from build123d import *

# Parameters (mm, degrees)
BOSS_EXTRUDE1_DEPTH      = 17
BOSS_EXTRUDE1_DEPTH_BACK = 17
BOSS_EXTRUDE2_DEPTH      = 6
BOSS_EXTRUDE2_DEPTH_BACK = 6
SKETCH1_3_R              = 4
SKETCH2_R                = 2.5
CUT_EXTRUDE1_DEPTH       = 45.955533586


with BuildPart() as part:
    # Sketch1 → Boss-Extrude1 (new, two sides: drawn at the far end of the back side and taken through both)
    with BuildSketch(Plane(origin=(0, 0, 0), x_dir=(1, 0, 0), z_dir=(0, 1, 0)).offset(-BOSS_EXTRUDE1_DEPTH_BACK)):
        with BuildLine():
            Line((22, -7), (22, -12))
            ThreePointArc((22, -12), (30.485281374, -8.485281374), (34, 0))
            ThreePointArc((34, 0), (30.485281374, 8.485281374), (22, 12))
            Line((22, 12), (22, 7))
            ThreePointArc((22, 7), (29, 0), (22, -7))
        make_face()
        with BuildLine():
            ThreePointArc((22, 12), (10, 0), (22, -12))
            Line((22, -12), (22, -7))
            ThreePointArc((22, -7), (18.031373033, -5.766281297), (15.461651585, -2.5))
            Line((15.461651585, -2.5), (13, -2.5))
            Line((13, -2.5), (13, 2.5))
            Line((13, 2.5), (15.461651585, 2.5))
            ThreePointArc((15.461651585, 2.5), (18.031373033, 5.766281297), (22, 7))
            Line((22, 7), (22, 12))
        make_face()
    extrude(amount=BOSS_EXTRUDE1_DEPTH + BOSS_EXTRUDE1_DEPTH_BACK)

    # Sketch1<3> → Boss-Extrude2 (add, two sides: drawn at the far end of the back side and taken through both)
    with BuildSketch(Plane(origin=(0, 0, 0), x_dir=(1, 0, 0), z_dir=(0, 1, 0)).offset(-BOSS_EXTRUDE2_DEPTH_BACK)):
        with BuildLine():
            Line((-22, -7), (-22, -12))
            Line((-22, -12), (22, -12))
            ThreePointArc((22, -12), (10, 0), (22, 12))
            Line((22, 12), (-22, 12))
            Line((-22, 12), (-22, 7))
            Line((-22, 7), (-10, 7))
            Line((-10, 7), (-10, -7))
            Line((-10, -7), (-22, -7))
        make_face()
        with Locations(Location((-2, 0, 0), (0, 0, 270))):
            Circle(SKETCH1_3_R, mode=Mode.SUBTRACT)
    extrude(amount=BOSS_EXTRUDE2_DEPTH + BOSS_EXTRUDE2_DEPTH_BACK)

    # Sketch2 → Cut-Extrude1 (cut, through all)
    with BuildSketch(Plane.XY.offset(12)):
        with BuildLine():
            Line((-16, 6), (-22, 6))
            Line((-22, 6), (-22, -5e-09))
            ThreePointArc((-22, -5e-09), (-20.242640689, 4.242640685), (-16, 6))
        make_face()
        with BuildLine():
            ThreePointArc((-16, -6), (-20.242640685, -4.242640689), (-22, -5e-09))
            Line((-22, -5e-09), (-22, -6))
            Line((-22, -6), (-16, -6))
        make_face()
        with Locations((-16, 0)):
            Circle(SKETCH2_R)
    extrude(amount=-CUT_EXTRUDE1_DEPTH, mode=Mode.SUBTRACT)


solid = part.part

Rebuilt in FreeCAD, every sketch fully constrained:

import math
import FreeCAD as App
import Part
import Sketcher
Q = App.Units.Quantity

doc = App.newDocument("Part")
params = doc.addObject("Spreadsheet::Sheet", "Params")
for row, (alias, value) in enumerate([
    ("sketch1_radius", "12 mm"),
    ("sketch1_radius2", "7 mm"),
    ("sketch1_height", "5 mm"),
    ("pad1_length", "17 mm"),
    ("pad1_length2", "17 mm"),
    ("sketch2_diameter", "8 mm"),
    ("sketch2_radius", "12 mm"),
    ("sketch2_width", "44 mm"),
    ("sketch2_width2", "12 mm"),
    ("sketch2_height", "5 mm"),
    ("pad2_length", "6 mm"),
    ("pad2_length2", "6 mm"),
    ("sketch3_diameter", "5 mm"),
    ("sketch3_radius", "6 mm"),
], start=1):
    params.set(f"A{row}", alias)
    params.set(f"B{row}", "=" + value)
    params.setAlias(f"B{row}", alias)

body = doc.addObject("PartDesign::Body", "Body")

# Sketch on XZ plane
sketch1 = body.newObject("Sketcher::SketchObject", "Sketch")
sketch1.AttachmentSupport = (doc.getObject("XZ_Plane"), [""])
sketch1.MapMode = "FlatFace"
sketch1.addGeometry([
    Part.ArcOfCircle(Part.Circle(App.Vector(22, 0, 0), App.Vector(0, 0, 1), 12), math.radians(0), math.radians(90)),  # 0
    Part.ArcOfCircle(Part.Circle(App.Vector(22, 0, 0), App.Vector(0, 0, 1), 12), math.radians(-90), math.radians(0)),  # 1
    Part.ArcOfCircle(Part.Circle(App.Vector(22, 0, 0), App.Vector(0, 0, 1), 12), math.radians(90), math.radians(270)),  # 2
    Part.ArcOfCircle(Part.Circle(App.Vector(22, 0, 0), App.Vector(0, 0, 1), 7), math.radians(-90), math.radians(90)),  # 3
    Part.ArcOfCircle(Part.Circle(App.Vector(22, 0, 0), App.Vector(0, 0, 1), 7), math.radians(90), math.radians(159.075168)),  # 4
    Part.LineSegment(App.Vector(15.461652, 2.5, 0), App.Vector(13, 2.5, 0)),  # 5
    Part.LineSegment(App.Vector(13, 2.5, 0), App.Vector(13, -2.5, 0)),  # 6
    Part.LineSegment(App.Vector(13, -2.5, 0), App.Vector(15.461652, -2.5, 0)),  # 7
    Part.ArcOfCircle(Part.Circle(App.Vector(22, 0, 0), App.Vector(0, 0, 1), 7), math.radians(-159.075168), math.radians(-90)),  # 8
], False)
sketch1.addConstraint([
    Sketcher.Constraint("Tangent", 0, 1, 1, 2),
    Sketcher.Constraint("Tangent", 1, 1, 2, 2),
    Sketcher.Constraint("Tangent", 2, 1, 0, 2),
    Sketcher.Constraint("Tangent", 3, 2, 4, 1),
    Sketcher.Constraint("Coincident", 4, 2, 5, 1),
    Sketcher.Constraint("Coincident", 5, 2, 6, 1),
    Sketcher.Constraint("Coincident", 6, 2, 7, 1),
    Sketcher.Constraint("Coincident", 7, 2, 8, 1),
    Sketcher.Constraint("Tangent", 8, 2, 3, 1),
    Sketcher.Constraint("Horizontal", 5),
    Sketcher.Constraint("Vertical", 6),
    Sketcher.Constraint("Horizontal", 7),
    Sketcher.Constraint("Coincident", 3, 3, 0, 3),
    Sketcher.Constraint("Equal", 3, 4),
    Sketcher.Constraint("Equal", 4, 8),
    Sketcher.Constraint("Symmetric", 1, 1, 2, 1, -1),
    Sketcher.Constraint("PointOnObject", 0, 1, -1),
    Sketcher.Constraint("Vertical", 8, 3, 1, 1),
    Sketcher.Constraint("Vertical", 2, 1, 3, 2),
    Sketcher.Constraint("Vertical", 4, 2, 7, 2),
    Sketcher.Constraint("Vertical", 3, 2, 8, 2),
    Sketcher.Constraint("Radius", 0, Q("12 mm")),
    Sketcher.Constraint("Radius", 3, Q("7 mm")),
    Sketcher.Constraint("DistanceY", 6, 2, 6, 1, Q("5 mm")),
    Sketcher.Constraint("DistanceX", -1, 1, 0, 3, Q("22 mm")),
    Sketcher.Constraint("DistanceX", -1, 1, 5, 2, Q("13 mm")),
])
sketch1.setExpression("Constraints[21]", "Params.sketch1_radius")
sketch1.setExpression("Constraints[22]", "Params.sketch1_radius2")
sketch1.setExpression("Constraints[23]", "Params.sketch1_height")
pad1 = body.newObject("PartDesign::Pad", "Pad")
pad1.Profile = sketch1
pad1.Type = "TwoLengths"
pad1.setExpression("Length", "Params.pad1_length")
pad1.setExpression("Length2", "Params.pad1_length2")
pad1.Reversed = True

# Sketch on XZ plane
sketch2 = body.newObject("Sketcher::SketchObject", "Sketch001")
sketch2.AttachmentSupport = (doc.getObject("XZ_Plane"), [""])
sketch2.MapMode = "FlatFace"
sketch2.addGeometry([
    Part.LineSegment(App.Vector(-22, 7, 0), App.Vector(-22, 12, 0)),  # 0
    Part.LineSegment(App.Vector(-22, 12, 0), App.Vector(22, 12, 0)),  # 1
    Part.ArcOfCircle(Part.Circle(App.Vector(22, 0, 0), App.Vector(0, 0, 1), 12), math.radians(90), math.radians(270)),  # 2
    Part.LineSegment(App.Vector(22, -12, 0), App.Vector(-22, -12, 0)),  # 3
    Part.LineSegment(App.Vector(-22, -12, 0), App.Vector(-22, -7, 0)),  # 4
    Part.LineSegment(App.Vector(-22, -7, 0), App.Vector(-10, -7, 0)),  # 5
    Part.LineSegment(App.Vector(-10, -7, 0), App.Vector(-10, 7, 0)),  # 6
    Part.LineSegment(App.Vector(-10, 7, 0), App.Vector(-22, 7, 0)),  # 7
    Part.Circle(App.Vector(-2, 0, 0), App.Vector(0, 0, 1), 4),  # 8
], False)
sketch2.addConstraint([
    Sketcher.Constraint("Coincident", 0, 2, 1, 1),
    Sketcher.Constraint("Tangent", 1, 2, 2, 1),
    Sketcher.Constraint("Tangent", 2, 2, 3, 1),
    Sketcher.Constraint("Coincident", 3, 2, 4, 1),
    Sketcher.Constraint("Coincident", 4, 2, 5, 1),
    Sketcher.Constraint("Coincident", 5, 2, 6, 1),
    Sketcher.Constraint("Coincident", 6, 2, 7, 1),
    Sketcher.Constraint("Coincident", 7, 2, 0, 1),
    Sketcher.Constraint("Vertical", 0),
    Sketcher.Constraint("Horizontal", 1),
    Sketcher.Constraint("Horizontal", 3),
    Sketcher.Constraint("Vertical", 4),
    Sketcher.Constraint("Horizontal", 5),
    Sketcher.Constraint("Vertical", 6),
    Sketcher.Constraint("Horizontal", 7),
    Sketcher.Constraint("Symmetric", 0, 2, 2, 2, -1, 1),
    Sketcher.Constraint("Symmetric", 4, 2, 7, 2, -1),
    Sketcher.Constraint("PointOnObject", 8, 3, -1),
    Sketcher.Constraint("Diameter", 8, Q("8 mm")),
    Sketcher.Constraint("Radius", 2, Q("12 mm")),
    Sketcher.Constraint("DistanceX", 1, 1, 1, 2, Q("44 mm")),
    Sketcher.Constraint("DistanceX", 5, 1, 5, 2, Q("12 mm")),
    Sketcher.Constraint("DistanceY", 0, 1, 0, 2, Q("5 mm")),
    Sketcher.Constraint("DistanceX", 8, 3, -1, 1, Q("2 mm")),
])
sketch2.setExpression("Constraints[18]", "Params.sketch2_diameter")
sketch2.setExpression("Constraints[19]", "Params.sketch2_radius")
sketch2.setExpression("Constraints[20]", "Params.sketch2_width")
sketch2.setExpression("Constraints[21]", "Params.sketch2_width2")
sketch2.setExpression("Constraints[22]", "Params.sketch2_height")
pad2 = body.newObject("PartDesign::Pad", "Pad001")
pad2.Profile = sketch2
pad2.Type = "TwoLengths"
pad2.setExpression("Length", "Params.pad2_length")
pad2.setExpression("Length2", "Params.pad2_length2")
pad2.Reversed = True

# Sketch on XY plane
sketch3 = body.newObject("Sketcher::SketchObject", "Sketch002")
sketch3.AttachmentSupport = (doc.getObject("XY_Plane"), [""])
sketch3.MapMode = "FlatFace"
sketch3.AttachmentOffset = App.Placement(App.Vector(0, 0, 12), App.Rotation())
sketch3.addGeometry([
    Part.LineSegment(App.Vector(-16, 6, 0), App.Vector(-22, 6, 0)),  # 0
    Part.LineSegment(App.Vector(-22, 6, 0), App.Vector(-22, 0, 0)),  # 1
    Part.ArcOfCircle(Part.Circle(App.Vector(-16, 0, 0), App.Vector(0, 0, 1), 6), math.radians(90), math.radians(180)),  # 2
    Part.ArcOfCircle(Part.Circle(App.Vector(-16, 0, 0), App.Vector(0, 0, 1), 6), math.radians(-180), math.radians(-90)),  # 3
    Part.LineSegment(App.Vector(-22, 0, 0), App.Vector(-22, -6, 0)),  # 4
    Part.LineSegment(App.Vector(-22, -6, 0), App.Vector(-16, -6, 0)),  # 5
    Part.Circle(App.Vector(-16, 0, 0), App.Vector(0, 0, 1), 2.5),  # 6
], False)
sketch3.addConstraint([
    Sketcher.Constraint("Coincident", 0, 2, 1, 1),
    Sketcher.Constraint("Tangent", 1, 2, 2, 2),
    Sketcher.Constraint("Tangent", 2, 1, 0, 1),
    Sketcher.Constraint("Tangent", 3, 1, 4, 1),
    Sketcher.Constraint("Coincident", 4, 2, 5, 1),
    Sketcher.Constraint("Tangent", 5, 2, 3, 2),
    Sketcher.Constraint("Horizontal", 0),
    Sketcher.Constraint("Vertical", 1),
    Sketcher.Constraint("Vertical", 4),
    Sketcher.Constraint("Horizontal", 5),
    Sketcher.Constraint("Coincident", 3, 3, 2, 3),
    Sketcher.Constraint("Coincident", 6, 3, 2, 3),
    Sketcher.Constraint("Equal", 2, 3),
    Sketcher.Constraint("PointOnObject", 2, 3, -1),
    Sketcher.Constraint("Diameter", 6, Q("5 mm")),
    Sketcher.Constraint("Radius", 2, Q("6 mm")),
    Sketcher.Constraint("DistanceX", 2, 3, -1, 1, Q("16 mm")),
])
sketch3.setExpression("Constraints[14]", "Params.sketch3_diameter")
sketch3.setExpression("Constraints[15]", "Params.sketch3_radius")
pocket1 = body.newObject("PartDesign::Pocket", "Pocket")
pocket1.Profile = sketch3
pocket1.Type = "ThroughAll"

doc.recompute()
